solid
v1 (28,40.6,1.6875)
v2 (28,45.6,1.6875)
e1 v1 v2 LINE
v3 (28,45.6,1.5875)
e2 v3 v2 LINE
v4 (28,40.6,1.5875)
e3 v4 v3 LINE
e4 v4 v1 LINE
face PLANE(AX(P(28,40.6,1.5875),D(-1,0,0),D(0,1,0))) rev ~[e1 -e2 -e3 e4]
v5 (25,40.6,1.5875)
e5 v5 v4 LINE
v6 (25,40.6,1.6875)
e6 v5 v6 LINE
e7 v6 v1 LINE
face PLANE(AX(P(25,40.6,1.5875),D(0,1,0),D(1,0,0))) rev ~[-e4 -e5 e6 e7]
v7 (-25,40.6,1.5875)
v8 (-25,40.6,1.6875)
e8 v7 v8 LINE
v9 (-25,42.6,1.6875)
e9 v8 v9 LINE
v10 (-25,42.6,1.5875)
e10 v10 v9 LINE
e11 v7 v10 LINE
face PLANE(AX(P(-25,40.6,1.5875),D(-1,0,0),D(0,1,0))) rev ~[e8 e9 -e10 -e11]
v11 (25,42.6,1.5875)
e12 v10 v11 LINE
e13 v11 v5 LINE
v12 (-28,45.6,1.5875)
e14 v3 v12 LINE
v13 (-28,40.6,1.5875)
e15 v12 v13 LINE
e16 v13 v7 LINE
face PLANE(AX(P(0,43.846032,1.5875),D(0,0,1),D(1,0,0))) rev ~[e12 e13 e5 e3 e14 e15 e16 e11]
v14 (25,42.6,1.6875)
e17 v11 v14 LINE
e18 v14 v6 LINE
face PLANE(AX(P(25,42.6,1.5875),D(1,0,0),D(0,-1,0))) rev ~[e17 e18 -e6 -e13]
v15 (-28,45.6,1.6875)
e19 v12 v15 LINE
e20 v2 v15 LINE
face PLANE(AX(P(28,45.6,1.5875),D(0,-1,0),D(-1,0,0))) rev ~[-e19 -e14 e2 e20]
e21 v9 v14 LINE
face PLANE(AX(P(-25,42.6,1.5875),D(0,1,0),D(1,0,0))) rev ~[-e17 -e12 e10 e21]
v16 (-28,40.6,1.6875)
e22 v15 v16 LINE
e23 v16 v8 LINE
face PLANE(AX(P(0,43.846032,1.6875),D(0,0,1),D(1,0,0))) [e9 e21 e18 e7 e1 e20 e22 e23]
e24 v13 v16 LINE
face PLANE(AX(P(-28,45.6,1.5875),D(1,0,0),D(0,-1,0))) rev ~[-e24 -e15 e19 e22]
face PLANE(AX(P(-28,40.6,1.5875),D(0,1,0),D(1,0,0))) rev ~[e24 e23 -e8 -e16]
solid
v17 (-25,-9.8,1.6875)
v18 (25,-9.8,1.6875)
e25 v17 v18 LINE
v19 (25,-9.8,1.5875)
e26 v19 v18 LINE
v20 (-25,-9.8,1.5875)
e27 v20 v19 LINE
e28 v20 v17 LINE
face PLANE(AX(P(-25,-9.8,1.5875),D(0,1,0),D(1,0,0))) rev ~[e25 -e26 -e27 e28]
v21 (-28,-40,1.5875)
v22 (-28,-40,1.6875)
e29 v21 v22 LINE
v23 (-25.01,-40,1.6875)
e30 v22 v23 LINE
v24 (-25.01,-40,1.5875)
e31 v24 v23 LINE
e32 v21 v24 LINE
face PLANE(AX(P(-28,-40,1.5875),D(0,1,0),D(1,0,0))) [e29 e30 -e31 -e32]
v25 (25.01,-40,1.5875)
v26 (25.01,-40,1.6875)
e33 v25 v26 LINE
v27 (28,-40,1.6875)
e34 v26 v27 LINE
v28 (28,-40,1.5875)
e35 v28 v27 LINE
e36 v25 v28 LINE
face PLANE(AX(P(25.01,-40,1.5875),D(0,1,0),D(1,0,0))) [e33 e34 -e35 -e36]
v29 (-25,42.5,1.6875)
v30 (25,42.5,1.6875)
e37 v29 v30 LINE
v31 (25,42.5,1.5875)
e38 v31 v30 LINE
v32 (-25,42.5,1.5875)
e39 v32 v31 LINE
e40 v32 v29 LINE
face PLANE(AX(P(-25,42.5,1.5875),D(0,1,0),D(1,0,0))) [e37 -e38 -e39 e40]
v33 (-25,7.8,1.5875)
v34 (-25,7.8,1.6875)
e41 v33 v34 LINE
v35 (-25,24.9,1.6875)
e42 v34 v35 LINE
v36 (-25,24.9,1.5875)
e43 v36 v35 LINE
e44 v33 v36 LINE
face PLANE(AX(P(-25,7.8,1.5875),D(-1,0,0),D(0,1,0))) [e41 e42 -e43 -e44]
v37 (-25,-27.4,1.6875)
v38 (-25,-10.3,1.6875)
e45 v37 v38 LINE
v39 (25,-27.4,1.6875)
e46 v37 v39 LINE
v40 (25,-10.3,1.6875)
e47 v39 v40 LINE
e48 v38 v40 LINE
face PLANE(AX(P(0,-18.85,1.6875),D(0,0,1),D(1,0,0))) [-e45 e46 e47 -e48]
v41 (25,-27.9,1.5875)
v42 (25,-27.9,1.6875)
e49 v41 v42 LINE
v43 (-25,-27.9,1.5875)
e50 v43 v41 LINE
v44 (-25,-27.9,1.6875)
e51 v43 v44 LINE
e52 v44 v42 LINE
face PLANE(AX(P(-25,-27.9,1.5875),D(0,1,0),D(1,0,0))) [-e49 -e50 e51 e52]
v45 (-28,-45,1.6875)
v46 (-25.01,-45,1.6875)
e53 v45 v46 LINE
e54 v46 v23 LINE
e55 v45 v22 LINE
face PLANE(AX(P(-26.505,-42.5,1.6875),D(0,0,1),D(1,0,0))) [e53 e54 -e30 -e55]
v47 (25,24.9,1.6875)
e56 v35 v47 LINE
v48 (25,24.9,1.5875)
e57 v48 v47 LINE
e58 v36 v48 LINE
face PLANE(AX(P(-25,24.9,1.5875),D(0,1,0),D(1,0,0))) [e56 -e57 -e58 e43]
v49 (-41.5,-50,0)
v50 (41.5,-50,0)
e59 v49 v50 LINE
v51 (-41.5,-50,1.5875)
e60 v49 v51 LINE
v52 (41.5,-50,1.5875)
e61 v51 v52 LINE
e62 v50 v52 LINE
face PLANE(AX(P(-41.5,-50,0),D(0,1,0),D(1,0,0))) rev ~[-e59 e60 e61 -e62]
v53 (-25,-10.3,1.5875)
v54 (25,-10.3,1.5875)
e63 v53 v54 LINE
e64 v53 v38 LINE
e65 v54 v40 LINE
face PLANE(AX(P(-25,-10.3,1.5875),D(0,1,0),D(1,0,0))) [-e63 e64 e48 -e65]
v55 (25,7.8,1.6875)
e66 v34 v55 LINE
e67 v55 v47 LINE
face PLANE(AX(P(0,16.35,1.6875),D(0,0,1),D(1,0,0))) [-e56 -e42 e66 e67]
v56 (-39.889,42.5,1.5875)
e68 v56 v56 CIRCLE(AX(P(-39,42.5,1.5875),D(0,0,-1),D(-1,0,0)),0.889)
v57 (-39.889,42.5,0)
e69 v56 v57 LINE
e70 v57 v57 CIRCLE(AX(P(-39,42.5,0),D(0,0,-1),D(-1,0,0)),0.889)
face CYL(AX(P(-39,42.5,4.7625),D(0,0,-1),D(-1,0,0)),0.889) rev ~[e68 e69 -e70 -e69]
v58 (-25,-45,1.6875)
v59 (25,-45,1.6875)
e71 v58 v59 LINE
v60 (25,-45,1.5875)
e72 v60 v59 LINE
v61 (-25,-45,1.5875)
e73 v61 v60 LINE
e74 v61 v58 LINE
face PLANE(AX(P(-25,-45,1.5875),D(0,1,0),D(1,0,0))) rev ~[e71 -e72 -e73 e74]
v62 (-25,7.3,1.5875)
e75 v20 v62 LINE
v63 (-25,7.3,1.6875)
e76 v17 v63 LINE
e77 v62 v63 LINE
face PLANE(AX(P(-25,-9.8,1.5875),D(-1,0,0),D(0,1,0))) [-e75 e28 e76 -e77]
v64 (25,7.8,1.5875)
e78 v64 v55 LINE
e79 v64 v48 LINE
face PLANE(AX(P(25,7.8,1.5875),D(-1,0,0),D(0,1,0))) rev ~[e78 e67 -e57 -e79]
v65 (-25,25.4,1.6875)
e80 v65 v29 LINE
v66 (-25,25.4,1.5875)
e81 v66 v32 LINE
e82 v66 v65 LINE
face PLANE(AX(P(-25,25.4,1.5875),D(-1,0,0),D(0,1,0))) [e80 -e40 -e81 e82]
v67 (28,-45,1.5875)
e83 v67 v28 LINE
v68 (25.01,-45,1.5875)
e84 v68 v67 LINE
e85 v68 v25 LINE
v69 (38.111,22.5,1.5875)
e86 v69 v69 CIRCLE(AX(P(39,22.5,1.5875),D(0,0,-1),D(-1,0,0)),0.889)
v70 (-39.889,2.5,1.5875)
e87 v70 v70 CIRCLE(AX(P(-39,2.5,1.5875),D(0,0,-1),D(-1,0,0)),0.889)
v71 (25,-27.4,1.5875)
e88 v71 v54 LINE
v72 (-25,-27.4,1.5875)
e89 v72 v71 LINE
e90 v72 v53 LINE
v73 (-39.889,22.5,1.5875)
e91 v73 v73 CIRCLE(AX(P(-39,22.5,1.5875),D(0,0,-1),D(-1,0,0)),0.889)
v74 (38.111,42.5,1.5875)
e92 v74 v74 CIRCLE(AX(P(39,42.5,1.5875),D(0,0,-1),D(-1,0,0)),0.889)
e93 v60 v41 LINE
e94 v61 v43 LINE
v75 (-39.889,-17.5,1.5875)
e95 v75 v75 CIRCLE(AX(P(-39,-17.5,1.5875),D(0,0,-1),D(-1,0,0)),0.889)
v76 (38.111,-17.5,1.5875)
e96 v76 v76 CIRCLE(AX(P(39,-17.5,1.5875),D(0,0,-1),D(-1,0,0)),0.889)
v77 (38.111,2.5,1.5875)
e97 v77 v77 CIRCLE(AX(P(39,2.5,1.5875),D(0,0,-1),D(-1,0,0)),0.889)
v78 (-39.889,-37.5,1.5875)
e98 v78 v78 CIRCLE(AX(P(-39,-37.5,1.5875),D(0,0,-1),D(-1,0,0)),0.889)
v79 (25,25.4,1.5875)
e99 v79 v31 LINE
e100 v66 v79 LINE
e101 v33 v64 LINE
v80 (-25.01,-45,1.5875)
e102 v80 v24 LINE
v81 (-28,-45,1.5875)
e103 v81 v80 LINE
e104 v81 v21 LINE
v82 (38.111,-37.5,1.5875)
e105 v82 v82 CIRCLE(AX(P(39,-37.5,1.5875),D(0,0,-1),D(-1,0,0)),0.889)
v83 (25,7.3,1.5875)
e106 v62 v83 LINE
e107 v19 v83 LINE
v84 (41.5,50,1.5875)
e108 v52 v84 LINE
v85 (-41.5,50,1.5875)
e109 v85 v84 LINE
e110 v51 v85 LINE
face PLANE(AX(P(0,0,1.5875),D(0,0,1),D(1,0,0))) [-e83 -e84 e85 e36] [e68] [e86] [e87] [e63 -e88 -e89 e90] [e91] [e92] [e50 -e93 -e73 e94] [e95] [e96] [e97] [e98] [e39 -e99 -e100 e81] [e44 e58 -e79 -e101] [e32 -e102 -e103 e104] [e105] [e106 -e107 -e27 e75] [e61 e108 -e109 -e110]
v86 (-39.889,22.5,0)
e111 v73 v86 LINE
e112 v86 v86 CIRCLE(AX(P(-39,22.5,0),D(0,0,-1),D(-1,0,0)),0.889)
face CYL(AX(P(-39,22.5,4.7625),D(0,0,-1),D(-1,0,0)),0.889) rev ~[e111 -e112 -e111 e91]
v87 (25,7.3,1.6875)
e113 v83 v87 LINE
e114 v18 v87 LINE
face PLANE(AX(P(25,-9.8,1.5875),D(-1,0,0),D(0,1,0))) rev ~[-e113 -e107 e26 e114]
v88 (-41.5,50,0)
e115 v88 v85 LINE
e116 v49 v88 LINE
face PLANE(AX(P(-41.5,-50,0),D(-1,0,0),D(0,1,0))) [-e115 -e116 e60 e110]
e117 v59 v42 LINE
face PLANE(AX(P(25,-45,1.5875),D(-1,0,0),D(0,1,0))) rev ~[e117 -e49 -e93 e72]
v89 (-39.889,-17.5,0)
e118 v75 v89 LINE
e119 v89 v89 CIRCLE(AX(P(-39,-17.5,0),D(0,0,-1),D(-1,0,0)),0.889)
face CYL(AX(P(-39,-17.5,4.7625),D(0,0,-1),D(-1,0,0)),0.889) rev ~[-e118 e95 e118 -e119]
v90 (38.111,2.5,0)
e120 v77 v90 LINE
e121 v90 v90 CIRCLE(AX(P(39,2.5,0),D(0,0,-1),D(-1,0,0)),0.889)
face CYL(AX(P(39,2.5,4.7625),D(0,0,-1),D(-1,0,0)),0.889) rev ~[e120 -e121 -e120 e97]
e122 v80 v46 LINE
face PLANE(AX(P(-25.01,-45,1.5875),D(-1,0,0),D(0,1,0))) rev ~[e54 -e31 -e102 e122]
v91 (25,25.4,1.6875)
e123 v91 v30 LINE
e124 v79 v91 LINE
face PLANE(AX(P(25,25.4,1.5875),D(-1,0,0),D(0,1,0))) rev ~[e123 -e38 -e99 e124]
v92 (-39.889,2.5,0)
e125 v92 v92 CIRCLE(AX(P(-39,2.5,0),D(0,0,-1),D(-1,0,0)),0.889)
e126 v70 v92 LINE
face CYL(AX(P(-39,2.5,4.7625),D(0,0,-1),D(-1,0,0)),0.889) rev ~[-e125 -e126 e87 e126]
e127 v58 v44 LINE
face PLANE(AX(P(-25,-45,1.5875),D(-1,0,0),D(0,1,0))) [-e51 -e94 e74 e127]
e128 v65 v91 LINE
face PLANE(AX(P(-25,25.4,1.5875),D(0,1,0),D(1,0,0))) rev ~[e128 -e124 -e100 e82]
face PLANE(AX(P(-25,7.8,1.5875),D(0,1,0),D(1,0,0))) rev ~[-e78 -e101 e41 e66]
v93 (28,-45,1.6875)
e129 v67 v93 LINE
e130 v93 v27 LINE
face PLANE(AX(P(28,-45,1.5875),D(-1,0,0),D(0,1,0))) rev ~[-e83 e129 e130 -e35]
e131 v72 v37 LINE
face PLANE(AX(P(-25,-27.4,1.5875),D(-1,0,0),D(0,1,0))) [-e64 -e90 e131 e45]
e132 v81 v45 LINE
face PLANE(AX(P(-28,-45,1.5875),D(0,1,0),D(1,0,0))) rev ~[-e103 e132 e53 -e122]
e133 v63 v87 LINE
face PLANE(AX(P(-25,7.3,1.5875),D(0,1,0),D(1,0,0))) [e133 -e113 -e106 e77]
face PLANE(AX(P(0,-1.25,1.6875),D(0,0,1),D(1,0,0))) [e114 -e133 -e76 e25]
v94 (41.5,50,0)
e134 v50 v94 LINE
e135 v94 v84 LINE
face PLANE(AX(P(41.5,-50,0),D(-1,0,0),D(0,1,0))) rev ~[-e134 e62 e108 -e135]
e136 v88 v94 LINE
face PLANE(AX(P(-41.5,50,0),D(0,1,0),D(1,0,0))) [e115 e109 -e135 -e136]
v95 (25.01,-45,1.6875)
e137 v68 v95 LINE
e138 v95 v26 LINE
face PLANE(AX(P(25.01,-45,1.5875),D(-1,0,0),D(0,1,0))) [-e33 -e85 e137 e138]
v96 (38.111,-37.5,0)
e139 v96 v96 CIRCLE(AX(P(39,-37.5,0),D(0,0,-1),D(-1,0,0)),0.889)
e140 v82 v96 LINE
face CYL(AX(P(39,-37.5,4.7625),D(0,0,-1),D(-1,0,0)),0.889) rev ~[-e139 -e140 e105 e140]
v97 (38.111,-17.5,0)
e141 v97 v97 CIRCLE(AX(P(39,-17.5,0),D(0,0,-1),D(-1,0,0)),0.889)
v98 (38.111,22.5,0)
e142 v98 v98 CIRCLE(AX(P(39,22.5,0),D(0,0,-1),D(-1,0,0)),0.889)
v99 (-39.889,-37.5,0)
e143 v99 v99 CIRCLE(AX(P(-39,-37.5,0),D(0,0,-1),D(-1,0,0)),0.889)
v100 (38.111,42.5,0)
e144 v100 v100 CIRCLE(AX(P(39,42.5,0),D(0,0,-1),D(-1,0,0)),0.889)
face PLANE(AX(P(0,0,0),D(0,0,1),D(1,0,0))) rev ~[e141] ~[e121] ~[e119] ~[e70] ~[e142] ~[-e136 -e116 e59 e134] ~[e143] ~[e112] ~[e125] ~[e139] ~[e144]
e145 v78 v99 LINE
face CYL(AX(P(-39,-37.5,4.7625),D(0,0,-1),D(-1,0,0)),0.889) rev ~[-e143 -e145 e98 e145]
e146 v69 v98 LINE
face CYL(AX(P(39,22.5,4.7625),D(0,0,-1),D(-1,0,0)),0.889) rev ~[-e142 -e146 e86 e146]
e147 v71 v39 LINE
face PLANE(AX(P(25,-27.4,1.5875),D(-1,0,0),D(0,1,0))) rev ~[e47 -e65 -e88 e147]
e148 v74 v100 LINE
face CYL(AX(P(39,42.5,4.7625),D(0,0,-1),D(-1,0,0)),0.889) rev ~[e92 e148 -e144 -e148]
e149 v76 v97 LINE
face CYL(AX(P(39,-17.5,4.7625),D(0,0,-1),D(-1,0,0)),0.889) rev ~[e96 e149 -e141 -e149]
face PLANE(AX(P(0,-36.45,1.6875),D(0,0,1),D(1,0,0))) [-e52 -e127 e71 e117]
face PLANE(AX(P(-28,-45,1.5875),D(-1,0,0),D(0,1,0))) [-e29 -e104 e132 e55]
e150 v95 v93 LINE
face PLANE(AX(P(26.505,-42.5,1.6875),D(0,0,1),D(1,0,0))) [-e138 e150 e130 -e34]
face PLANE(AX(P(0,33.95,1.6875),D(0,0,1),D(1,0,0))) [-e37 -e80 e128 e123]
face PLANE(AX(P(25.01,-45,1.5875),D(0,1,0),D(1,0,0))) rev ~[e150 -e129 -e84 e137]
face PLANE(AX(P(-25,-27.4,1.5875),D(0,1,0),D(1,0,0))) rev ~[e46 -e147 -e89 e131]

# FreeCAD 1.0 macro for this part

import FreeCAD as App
import Part
import Sketcher
Q = App.Units.Quantity


def add_polygon(sketch, points):
    """Adds a closed chain of lines whose ends are joined by coincident constraints."""
    first, n = sketch.GeometryCount, len(points)
    for a, b in zip(points, points[1:] + points[:1]):
        sketch.addGeometry(Part.LineSegment(App.Vector(*a, 0), App.Vector(*b, 0)), False)
    for i in range(n):
        sketch.addConstraint(Sketcher.Constraint("Coincident", first + i, 2, first + (i + 1) % n, 1))

doc = App.newDocument("Part")
params = doc.addObject("Spreadsheet::Sheet", "Params")
for row, (alias, value) in enumerate([
    ("sketch1_width", "83 mm"),
    ("sketch1_height", "100 mm"),
    ("pad1_length", "1.5875 mm"),
    ("hole_diameter", "1.778 mm"),
    ("hole_depth", "3.175 mm"),
    ("sketch3_width", "50 mm"),
    ("sketch3_height", "17.1 mm"),
    ("pad2_length", "0.1 mm"),
    ("sketch4_height", "5 mm"),
    ("sketch4_width", "2.99 mm"),
    ("pad3_length", "0.1 mm"),
    ("sketch5_width", "50 mm"),
    ("sketch5_width2", "3 mm"),
    ("sketch5_height", "2 mm"),
    ("sketch5_height2", "5 mm"),
    ("pad4_length", "0.1 mm"),
], start=1):
    params.set(f"A{row}", alias)
    params.set(f"B{row}", "=" + value)
    params.setAlias(f"B{row}", alias)

body = doc.addObject("PartDesign::Body", "Body")

# Sketch on XY plane
sketch1 = doc.addObject("Sketcher::SketchObject", "Sketch")
body.addObject(sketch1)
sketch1.AttachmentSupport = (doc.XY_Plane, [""])
sketch1.MapMode = "FlatFace"
add_polygon(sketch1, [(-41.5, 50), (-41.5, -50), (41.5, -50), (41.5, 50)])  # lines 0-3
sketch1.addConstraint([
    Sketcher.Constraint("Vertical", 0),
    Sketcher.Constraint("Horizontal", 1),
    Sketcher.Constraint("Vertical", 2),
    Sketcher.Constraint("Horizontal", 3),
    Sketcher.Constraint("Symmetric", 0, 2, 2, 2, -1, 1),
    Sketcher.Constraint("DistanceX", 1, 1, 1, 2, Q("83 mm")),
    Sketcher.Constraint("DistanceY", 0, 2, 0, 1, Q("100 mm")),
])
sketch1.setExpression("Constraints[9]", "Params.sketch1_width")
sketch1.setExpression("Constraints[10]", "Params.sketch1_height")
pad1 = doc.addObject("PartDesign::Pad", "Pad")
body.addObject(pad1)
pad1.Profile = sketch1
pad1.setExpression("Length", "Params.pad1_length")

# Sketch on XY plane
sketch2 = doc.addObject("Sketcher::SketchObject", "Sketch001")
body.addObject(sketch2)
sketch2.AttachmentSupport = (doc.XY_Plane, [""])
sketch2.MapMode = "FlatFace"
sketch2.AttachmentOffset = App.Placement(App.Vector(0, 0, 1.5875), App.Rotation())
sketch2.addGeometry([
    Part.Circle(App.Vector(-39, 42.5, 0), App.Vector(0, 0, 1), 0.889),  # 0
    Part.Circle(App.Vector(-39, 22.5, 0), App.Vector(0, 0, 1), 0.889),  # 1
    Part.Circle(App.Vector(-39, 2.5, 0), App.Vector(0, 0, 1), 0.889),  # 2
    Part.Circle(App.Vector(-39, -17.5, 0), App.Vector(0, 0, 1), 0.889),  # 3
    Part.Circle(App.Vector(-39, -37.5, 0), App.Vector(0, 0, 1), 0.889),  # 4
    Part.Circle(App.Vector(39, -37.5, 0), App.Vector(0, 0, 1), 0.889),  # 5
    Part.Circle(App.Vector(39, -17.5, 0), App.Vector(0, 0, 1), 0.889),  # 6
    Part.Circle(App.Vector(39, 2.5, 0), App.Vector(0, 0, 1), 0.889),  # 7
    Part.Circle(App.Vector(39, 22.5, 0), App.Vector(0, 0, 1), 0.889),  # 8
    Part.Circle(App.Vector(39, 42.5, 0), App.Vector(0, 0, 1), 0.889),  # 9
], False)
sketch2.addConstraint([
    Sketcher.Constraint("Equal", 0, 1),
    Sketcher.Constraint("Equal", 1, 2),
    Sketcher.Constraint("Equal", 2, 3),
    Sketcher.Constraint("Equal", 3, 4),
    Sketcher.Constraint("Equal", 4, 5),
    Sketcher.Constraint("Equal", 5, 6),
    Sketcher.Constraint("Equal", 6, 7),
    Sketcher.Constraint("Equal", 7, 8),
    Sketcher.Constraint("Equal", 8, 9),
    Sketcher.Constraint("Symmetric", 4, 3, 5, 3, -2),
    Sketcher.Constraint("Symmetric", 3, 3, 6, 3, -2),
    Sketcher.Constraint("Symmetric", 2, 3, 7, 3, -2),
    Sketcher.Constraint("Symmetric", 1, 3, 8, 3, -2),
    Sketcher.Constraint("Symmetric", 0, 3, 9, 3, -2),
    Sketcher.Constraint("Vertical", 0, 3, 1, 3),
    Sketcher.Constraint("Vertical", 1, 3, 2, 3),
    Sketcher.Constraint("Vertical", 2, 3, 3, 3),
    Sketcher.Constraint("Vertical", 3, 3, 4, 3),
    Sketcher.Constraint("Diameter", 0, Q("1.778 mm")),
    Sketcher.Constraint("DistanceX", 0, 3, -1, 1, Q("39 mm")),
    Sketcher.Constraint("DistanceY", 1, 3, 0, 3, Q("20 mm")),
    Sketcher.Constraint("DistanceY", 2, 3, 1, 3, Q("20 mm")),
    Sketcher.Constraint("DistanceY", 3, 3, 2, 3, Q("20 mm")),
    Sketcher.Constraint("DistanceY", 4, 3, 3, 3, Q("20 mm")),
    Sketcher.Constraint("DistanceY", -1, 1, 0, 3, Q("42.5 mm")),
])
doc.recompute()
hole = doc.addObject("PartDesign::Hole", "Hole")
body.addObject(hole)
hole.Profile = sketch2
hole.ThreadType = "None"
hole.setExpression("Diameter", "Params.hole_diameter")
hole.DepthType = "Dimension"
hole.setExpression("Depth", "Params.hole_depth")
hole.DrillPoint = "Angled"
hole.DrillPointAngle = 118

# Sketch on XY plane
sketch3 = doc.addObject("Sketcher::SketchObject", "Sketch002")
body.addObject(sketch3)
sketch3.AttachmentSupport = (doc.XY_Plane, [""])
sketch3.MapMode = "FlatFace"
sketch3.AttachmentOffset = App.Placement(App.Vector(0, 0, 1.5875), App.Rotation())
add_polygon(sketch3, [(-25, 24.9), (-25, 7.8), (25, 7.8), (25, 24.9)])  # lines 0-3
add_polygon(sketch3, [(-25, 42.5), (-25, 25.4), (25, 25.4), (25, 42.5)])  # lines 4-7
add_polygon(sketch3, [(-25, 7.3), (-25, -9.8), (25, -9.8), (25, 7.3)])  # lines 8-11
add_polygon(sketch3, [(-25, -10.3), (-25, -27.4), (25, -27.4), (25, -10.3)])  # lines 12-15
add_polygon(sketch3, [(-25, -27.9), (-25, -45), (25, -45), (25, -27.9)])  # lines 16-19
sketch3.addConstraint([
    Sketcher.Constraint("Vertical", 0),
    Sketcher.Constraint("Horizontal", 1),
    Sketcher.Constraint("Vertical", 2),
    Sketcher.Constraint("Horizontal", 3),
    Sketcher.Constraint("Vertical", 4),
    Sketcher.Constraint("Horizontal", 5),
    Sketcher.Constraint("Vertical", 6),
    Sketcher.Constraint("Horizontal", 7),
    Sketcher.Constraint("Vertical", 8),
    Sketcher.Constraint("Horizontal", 9),
    Sketcher.Constraint("Vertical", 10),
    Sketcher.Constraint("Horizontal", 11),
    Sketcher.Constraint("Vertical", 12),
    Sketcher.Constraint("Horizontal", 13),
    Sketcher.Constraint("Vertical", 14),
    Sketcher.Constraint("Horizontal", 15),
    Sketcher.Constraint("Vertical", 16),
    Sketcher.Constraint("Horizontal", 17),
    Sketcher.Constraint("Vertical", 18),
    Sketcher.Constraint("Horizontal", 19),
    Sketcher.Constraint("Vertical", 3, 2, 4, 2),
    Sketcher.Constraint("Vertical", 2, 2, 5, 2),
    Sketcher.Constraint("Vertical", 7, 2, 8, 2),
    Sketcher.Constraint("Vertical", 6, 2, 9, 2),
    Sketcher.Constraint("Vertical", 11, 2, 12, 2),
    Sketcher.Constraint("Vertical", 10, 2, 13, 2),
    Sketcher.Constraint("Vertical", 15, 2, 16, 2),
    Sketcher.Constraint("Vertical", 14, 2, 17, 2),
    Sketcher.Constraint("Equal", 2, 4),
    Sketcher.Constraint("Equal", 6, 8),
    Sketcher.Constraint("Equal", 10, 12),
    Sketcher.Constraint("Equal", 14, 16),
    Sketcher.Constraint("DistanceX", 1, 1, 1, 2, Q("50 mm")),
    Sketcher.Constraint("DistanceY", 0, 2, 0, 1, Q("17.1 mm")),
    Sketcher.Constraint("DistanceX", 0, 2, -1, 1, Q("25 mm")),
    Sketcher.Constraint("DistanceY", 16, 2, -1, 1, Q("45 mm")),
    Sketcher.Constraint("DistanceY", -1, 1, 0, 2, Q("7.8 mm")),
    Sketcher.Constraint("DistanceY", -1, 1, 4, 2, Q("25.4 mm")),
    Sketcher.Constraint("DistanceY", 8, 2, -1, 1, Q("9.8 mm")),
    Sketcher.Constraint("DistanceY", 12, 2, -1, 1, Q("27.4 mm")),
])
sketch3.setExpression("Constraints[52]", "Params.sketch3_width")
sketch3.setExpression("Constraints[53]", "Params.sketch3_height")
pad2 = doc.addObject("PartDesign::Pad", "Pad001")
body.addObject(pad2)
pad2.Profile = sketch3
pad2.setExpression("Length", "Params.pad2_length")

# Sketch on XY plane
sketch4 = doc.addObject("Sketcher::SketchObject", "Sketch003")
body.addObject(sketch4)
sketch4.AttachmentSupport = (doc.XY_Plane, [""])
sketch4.MapMode = "FlatFace"
sketch4.AttachmentOffset = App.Placement(App.Vector(0, 0, 1.5875), App.Rotation())
add_polygon(sketch4, [(25.01, -40), (25.01, -45), (28, -45), (28, -40)])  # lines 0-3
add_polygon(sketch4, [(-28, -40), (-28, -45), (-25.01, -45), (-25.01, -40)])  # lines 4-7
sketch4.addConstraint([
    Sketcher.Constraint("Vertical", 0),
    Sketcher.Constraint("Horizontal", 1),
    Sketcher.Constraint("Vertical", 2),
    Sketcher.Constraint("Horizontal", 3),
    Sketcher.Constraint("Vertical", 4),
    Sketcher.Constraint("Horizontal", 5),
    Sketcher.Constraint("Vertical", 6),
    Sketcher.Constraint("Horizontal", 7),
    Sketcher.Constraint("Symmetric", 1, 2, 4, 2, -2),
    Sketcher.Constraint("Symmetric", 3, 2, 6, 2, -2),
    Sketcher.Constraint("DistanceY", 0, 2, 0, 1, Q("5 mm")),
    Sketcher.Constraint("DistanceY", 0, 2, -1, 1, Q("45 mm")),
    Sketcher.Constraint("DistanceX", -1, 1, 1, 2, Q("28 mm")),
    Sketcher.Constraint("DistanceX", 1, 1, 1, 2, Q("2.99 mm")),
])
sketch4.setExpression("Constraints[18]", "Params.sketch4_height")
sketch4.setExpression("Constraints[21]", "Params.sketch4_width")
pad3 = doc.addObject("PartDesign::Pad", "Pad002")
body.addObject(pad3)
pad3.Profile = sketch4
pad3.setExpression("Length", "Params.pad3_length")
body2 = doc.addObject("PartDesign::Body", "Body001")

# Sketch on XY plane
sketch5 = doc.addObject("Sketcher::SketchObject", "Sketch004")
body2.addObject(sketch5)
sketch5.AttachmentSupport = (doc.getObject("XY_Plane001"), [""])
sketch5.MapMode = "FlatFace"
sketch5.AttachmentOffset = App.Placement(App.Vector(0, 0, 1.5875), App.Rotation())
add_polygon(sketch5, [(-25, 42.6), (25, 42.6), (25, 40.6), (28, 40.6), (28, 45.6), (-28, 45.6), (-28, 40.6), (-25, 40.6)])  # lines 0-7
sketch5.addConstraint([
    Sketcher.Constraint("Horizontal", 0),
    Sketcher.Constraint("Vertical", 1),
    Sketcher.Constraint("Horizontal", 2),
    Sketcher.Constraint("Vertical", 3),
    Sketcher.Constraint("Horizontal", 4),
    Sketcher.Constraint("Vertical", 5),
    Sketcher.Constraint("Horizontal", 6),
    Sketcher.Constraint("Vertical", 7),
    Sketcher.Constraint("Symmetric", 2, 2, 5, 2, -2),
    Sketcher.Constraint("Equal", 2, 6),
    Sketcher.Constraint("DistanceX", 0, 1, 0, 2, Q("50 mm")),
    Sketcher.Constraint("DistanceX", 2, 1, 2, 2, Q("3 mm")),
    Sketcher.Constraint("DistanceY", 1, 2, 1, 1, Q("2 mm")),
    Sketcher.Constraint("DistanceY", 3, 1, 3, 2, Q("5 mm")),
    Sketcher.Constraint("DistanceY", -1, 1, 0, 2, Q("42.6 mm")),
])
sketch5.setExpression("Constraints[18]", "Params.sketch5_width")
sketch5.setExpression("Constraints[19]", "Params.sketch5_width2")
sketch5.setExpression("Constraints[20]", "Params.sketch5_height")
sketch5.setExpression("Constraints[21]", "Params.sketch5_height2")
pad4 = doc.addObject("PartDesign::Pad", "Pad003")
body2.addObject(pad4)
pad4.Profile = sketch5
pad4.setExpression("Length", "Params.pad4_length")

doc.recompute()
